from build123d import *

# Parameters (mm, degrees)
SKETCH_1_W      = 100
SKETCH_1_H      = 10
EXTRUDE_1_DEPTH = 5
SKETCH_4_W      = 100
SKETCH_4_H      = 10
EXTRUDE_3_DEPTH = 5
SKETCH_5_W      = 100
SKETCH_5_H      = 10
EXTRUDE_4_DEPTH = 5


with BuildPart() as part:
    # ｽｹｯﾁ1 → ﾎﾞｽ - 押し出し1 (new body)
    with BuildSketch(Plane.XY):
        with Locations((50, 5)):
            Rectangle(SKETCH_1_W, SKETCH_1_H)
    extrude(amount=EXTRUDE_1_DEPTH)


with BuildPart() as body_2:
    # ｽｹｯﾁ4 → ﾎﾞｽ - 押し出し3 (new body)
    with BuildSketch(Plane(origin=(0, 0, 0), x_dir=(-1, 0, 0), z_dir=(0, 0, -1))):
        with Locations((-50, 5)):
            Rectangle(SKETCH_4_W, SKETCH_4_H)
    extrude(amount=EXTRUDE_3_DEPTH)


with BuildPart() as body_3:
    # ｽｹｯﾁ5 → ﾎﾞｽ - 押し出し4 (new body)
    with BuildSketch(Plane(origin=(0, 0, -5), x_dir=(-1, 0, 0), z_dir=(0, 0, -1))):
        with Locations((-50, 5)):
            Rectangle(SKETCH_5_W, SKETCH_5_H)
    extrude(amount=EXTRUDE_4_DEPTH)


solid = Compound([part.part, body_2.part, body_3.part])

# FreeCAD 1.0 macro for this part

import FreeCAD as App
import Part
import Sketcher
Q = App.Units.Quantity

doc = App.newDocument("Part")
body = doc.addObject("PartDesign::Body", "Body")

sketch1 = doc.addObject("Sketcher::SketchObject", "Sketch")
body.addObject(sketch1)
sketch1.AttachmentSupport = (doc.XY_Plane, [""])
sketch1.MapMode = "FlatFace"
sketch1.addGeometry([
    Part.LineSegment(App.Vector(0, 10, 0), App.Vector(0, 0, 0)),
    Part.LineSegment(App.Vector(0, 0, 0), App.Vector(100, 0, 0)),
    Part.LineSegment(App.Vector(100, 0, 0), App.Vector(100, 10, 0)),
    Part.LineSegment(App.Vector(100, 10, 0), App.Vector(0, 10, 0)),
], False)
sketch1.addConstraint([
    Sketcher.Constraint("Coincident", 0, 2, 1, 1),
    Sketcher.Constraint("Coincident", 1, 2, 2, 1),
    Sketcher.Constraint("Coincident", 2, 2, 3, 1),
    Sketcher.Constraint("Coincident", 3, 2, 0, 1),
    Sketcher.Constraint("Vertical", 0),
    Sketcher.Constraint("Horizontal", 1),
    Sketcher.Constraint("Vertical", 2),
    Sketcher.Constraint("Horizontal", 3),
    Sketcher.Constraint("Coincident", 0, 2, -1, 1),
    Sketcher.Constraint("DistanceX", 1, 1, 1, 2, Q("100 mm")),
    Sketcher.Constraint("DistanceY", 0, 2, 0, 1, Q("10 mm")),
])
pad1 = doc.addObject("PartDesign::Pad", "Pad")
body.addObject(pad1)
pad1.Profile = sketch1
pad1.Length = 5
body2 = doc.addObject("PartDesign::Body", "Body001")

sketch2 = doc.addObject("Sketcher::SketchObject", "Sketch001")
body2.addObject(sketch2)
sketch2.AttachmentSupport = (doc.getObject("XY_Plane001"), [""])
sketch2.MapMode = "FlatFace"
sketch2.addGeometry([
    Part.LineSegment(App.Vector(100, 10, 0), App.Vector(100, 0, 0)),
    Part.LineSegment(App.Vector(100, 0, 0), App.Vector(0, 0, 0)),
    Part.LineSegment(App.Vector(0, 0, 0), App.Vector(0, 10, 0)),
    Part.LineSegment(App.Vector(0, 10, 0), App.Vector(100, 10, 0)),
], False)
sketch2.addConstraint([
    Sketcher.Constraint("Coincident", 0, 2, 1, 1),
    Sketcher.Constraint("Coincident", 1, 2, 2, 1),
    Sketcher.Constraint("Coincident", 2, 2, 3, 1),
    Sketcher.Constraint("Coincident", 3, 2, 0, 1),
    Sketcher.Constraint("Vertical", 0),
    Sketcher.Constraint("Horizontal", 1),
    Sketcher.Constraint("Vertical", 2),
    Sketcher.Constraint("Horizontal", 3),
    Sketcher.Constraint("Coincident", 1, 2, -1, 1),
    Sketcher.Constraint("DistanceX", 1, 2, 1, 1, Q("100 mm")),
    Sketcher.Constraint("DistanceY", 0, 2, 0, 1, Q("10 mm")),
])
pad2 = doc.addObject("PartDesign::Pad", "Pad001")
body2.addObject(pad2)
pad2.Profile = sketch2
pad2.Length = 5
pad2.Reversed = True
body3 = doc.addObject("PartDesign::Body", "Body002")

sketch3 = doc.addObject("Sketcher::SketchObject", "Sketch002")
body3.addObject(sketch3)
sketch3.AttachmentSupport = (doc.getObject("XY_Plane002"), [""])
sketch3.MapMode = "FlatFace"
sketch3.AttachmentOffset = App.Placement(App.Vector(0, 0, -5), App.Rotation())
sketch3.addGeometry([
    Part.LineSegment(App.Vector(100, 10, 0), App.Vector(100, 0, 0)),
    Part.LineSegment(App.Vector(100, 0, 0), App.Vector(0, 0, 0)),
    Part.LineSegment(App.Vector(0, 0, 0), App.Vector(0, 10, 0)),
    Part.LineSegment(App.Vector(0, 10, 0), App.Vector(100, 10, 0)),
], False)
sketch3.addConstraint([
    Sketcher.Constraint("Coincident", 0, 2, 1, 1),
    Sketcher.Constraint("Coincident", 1, 2, 2, 1),
    Sketcher.Constraint("Coincident", 2, 2, 3, 1),
    Sketcher.Constraint("Coincident", 3, 2, 0, 1),
    Sketcher.Constraint("Vertical", 0),
    Sketcher.Constraint("Horizontal", 1),
    Sketcher.Constraint("Vertical", 2),
    Sketcher.Constraint("Horizontal", 3),
    Sketcher.Constraint("Coincident", 1, 2, -1, 1),
    Sketcher.Constraint("DistanceX", 1, 2, 1, 1, Q("100 mm")),
    Sketcher.Constraint("DistanceY", 0, 2, 0, 1, Q("10 mm")),
])
pad3 = doc.addObject("PartDesign::Pad", "Pad002")
body3.addObject(pad3)
pad3.Profile = sketch3
pad3.Length = 5
pad3.Reversed = True

doc.recompute()
